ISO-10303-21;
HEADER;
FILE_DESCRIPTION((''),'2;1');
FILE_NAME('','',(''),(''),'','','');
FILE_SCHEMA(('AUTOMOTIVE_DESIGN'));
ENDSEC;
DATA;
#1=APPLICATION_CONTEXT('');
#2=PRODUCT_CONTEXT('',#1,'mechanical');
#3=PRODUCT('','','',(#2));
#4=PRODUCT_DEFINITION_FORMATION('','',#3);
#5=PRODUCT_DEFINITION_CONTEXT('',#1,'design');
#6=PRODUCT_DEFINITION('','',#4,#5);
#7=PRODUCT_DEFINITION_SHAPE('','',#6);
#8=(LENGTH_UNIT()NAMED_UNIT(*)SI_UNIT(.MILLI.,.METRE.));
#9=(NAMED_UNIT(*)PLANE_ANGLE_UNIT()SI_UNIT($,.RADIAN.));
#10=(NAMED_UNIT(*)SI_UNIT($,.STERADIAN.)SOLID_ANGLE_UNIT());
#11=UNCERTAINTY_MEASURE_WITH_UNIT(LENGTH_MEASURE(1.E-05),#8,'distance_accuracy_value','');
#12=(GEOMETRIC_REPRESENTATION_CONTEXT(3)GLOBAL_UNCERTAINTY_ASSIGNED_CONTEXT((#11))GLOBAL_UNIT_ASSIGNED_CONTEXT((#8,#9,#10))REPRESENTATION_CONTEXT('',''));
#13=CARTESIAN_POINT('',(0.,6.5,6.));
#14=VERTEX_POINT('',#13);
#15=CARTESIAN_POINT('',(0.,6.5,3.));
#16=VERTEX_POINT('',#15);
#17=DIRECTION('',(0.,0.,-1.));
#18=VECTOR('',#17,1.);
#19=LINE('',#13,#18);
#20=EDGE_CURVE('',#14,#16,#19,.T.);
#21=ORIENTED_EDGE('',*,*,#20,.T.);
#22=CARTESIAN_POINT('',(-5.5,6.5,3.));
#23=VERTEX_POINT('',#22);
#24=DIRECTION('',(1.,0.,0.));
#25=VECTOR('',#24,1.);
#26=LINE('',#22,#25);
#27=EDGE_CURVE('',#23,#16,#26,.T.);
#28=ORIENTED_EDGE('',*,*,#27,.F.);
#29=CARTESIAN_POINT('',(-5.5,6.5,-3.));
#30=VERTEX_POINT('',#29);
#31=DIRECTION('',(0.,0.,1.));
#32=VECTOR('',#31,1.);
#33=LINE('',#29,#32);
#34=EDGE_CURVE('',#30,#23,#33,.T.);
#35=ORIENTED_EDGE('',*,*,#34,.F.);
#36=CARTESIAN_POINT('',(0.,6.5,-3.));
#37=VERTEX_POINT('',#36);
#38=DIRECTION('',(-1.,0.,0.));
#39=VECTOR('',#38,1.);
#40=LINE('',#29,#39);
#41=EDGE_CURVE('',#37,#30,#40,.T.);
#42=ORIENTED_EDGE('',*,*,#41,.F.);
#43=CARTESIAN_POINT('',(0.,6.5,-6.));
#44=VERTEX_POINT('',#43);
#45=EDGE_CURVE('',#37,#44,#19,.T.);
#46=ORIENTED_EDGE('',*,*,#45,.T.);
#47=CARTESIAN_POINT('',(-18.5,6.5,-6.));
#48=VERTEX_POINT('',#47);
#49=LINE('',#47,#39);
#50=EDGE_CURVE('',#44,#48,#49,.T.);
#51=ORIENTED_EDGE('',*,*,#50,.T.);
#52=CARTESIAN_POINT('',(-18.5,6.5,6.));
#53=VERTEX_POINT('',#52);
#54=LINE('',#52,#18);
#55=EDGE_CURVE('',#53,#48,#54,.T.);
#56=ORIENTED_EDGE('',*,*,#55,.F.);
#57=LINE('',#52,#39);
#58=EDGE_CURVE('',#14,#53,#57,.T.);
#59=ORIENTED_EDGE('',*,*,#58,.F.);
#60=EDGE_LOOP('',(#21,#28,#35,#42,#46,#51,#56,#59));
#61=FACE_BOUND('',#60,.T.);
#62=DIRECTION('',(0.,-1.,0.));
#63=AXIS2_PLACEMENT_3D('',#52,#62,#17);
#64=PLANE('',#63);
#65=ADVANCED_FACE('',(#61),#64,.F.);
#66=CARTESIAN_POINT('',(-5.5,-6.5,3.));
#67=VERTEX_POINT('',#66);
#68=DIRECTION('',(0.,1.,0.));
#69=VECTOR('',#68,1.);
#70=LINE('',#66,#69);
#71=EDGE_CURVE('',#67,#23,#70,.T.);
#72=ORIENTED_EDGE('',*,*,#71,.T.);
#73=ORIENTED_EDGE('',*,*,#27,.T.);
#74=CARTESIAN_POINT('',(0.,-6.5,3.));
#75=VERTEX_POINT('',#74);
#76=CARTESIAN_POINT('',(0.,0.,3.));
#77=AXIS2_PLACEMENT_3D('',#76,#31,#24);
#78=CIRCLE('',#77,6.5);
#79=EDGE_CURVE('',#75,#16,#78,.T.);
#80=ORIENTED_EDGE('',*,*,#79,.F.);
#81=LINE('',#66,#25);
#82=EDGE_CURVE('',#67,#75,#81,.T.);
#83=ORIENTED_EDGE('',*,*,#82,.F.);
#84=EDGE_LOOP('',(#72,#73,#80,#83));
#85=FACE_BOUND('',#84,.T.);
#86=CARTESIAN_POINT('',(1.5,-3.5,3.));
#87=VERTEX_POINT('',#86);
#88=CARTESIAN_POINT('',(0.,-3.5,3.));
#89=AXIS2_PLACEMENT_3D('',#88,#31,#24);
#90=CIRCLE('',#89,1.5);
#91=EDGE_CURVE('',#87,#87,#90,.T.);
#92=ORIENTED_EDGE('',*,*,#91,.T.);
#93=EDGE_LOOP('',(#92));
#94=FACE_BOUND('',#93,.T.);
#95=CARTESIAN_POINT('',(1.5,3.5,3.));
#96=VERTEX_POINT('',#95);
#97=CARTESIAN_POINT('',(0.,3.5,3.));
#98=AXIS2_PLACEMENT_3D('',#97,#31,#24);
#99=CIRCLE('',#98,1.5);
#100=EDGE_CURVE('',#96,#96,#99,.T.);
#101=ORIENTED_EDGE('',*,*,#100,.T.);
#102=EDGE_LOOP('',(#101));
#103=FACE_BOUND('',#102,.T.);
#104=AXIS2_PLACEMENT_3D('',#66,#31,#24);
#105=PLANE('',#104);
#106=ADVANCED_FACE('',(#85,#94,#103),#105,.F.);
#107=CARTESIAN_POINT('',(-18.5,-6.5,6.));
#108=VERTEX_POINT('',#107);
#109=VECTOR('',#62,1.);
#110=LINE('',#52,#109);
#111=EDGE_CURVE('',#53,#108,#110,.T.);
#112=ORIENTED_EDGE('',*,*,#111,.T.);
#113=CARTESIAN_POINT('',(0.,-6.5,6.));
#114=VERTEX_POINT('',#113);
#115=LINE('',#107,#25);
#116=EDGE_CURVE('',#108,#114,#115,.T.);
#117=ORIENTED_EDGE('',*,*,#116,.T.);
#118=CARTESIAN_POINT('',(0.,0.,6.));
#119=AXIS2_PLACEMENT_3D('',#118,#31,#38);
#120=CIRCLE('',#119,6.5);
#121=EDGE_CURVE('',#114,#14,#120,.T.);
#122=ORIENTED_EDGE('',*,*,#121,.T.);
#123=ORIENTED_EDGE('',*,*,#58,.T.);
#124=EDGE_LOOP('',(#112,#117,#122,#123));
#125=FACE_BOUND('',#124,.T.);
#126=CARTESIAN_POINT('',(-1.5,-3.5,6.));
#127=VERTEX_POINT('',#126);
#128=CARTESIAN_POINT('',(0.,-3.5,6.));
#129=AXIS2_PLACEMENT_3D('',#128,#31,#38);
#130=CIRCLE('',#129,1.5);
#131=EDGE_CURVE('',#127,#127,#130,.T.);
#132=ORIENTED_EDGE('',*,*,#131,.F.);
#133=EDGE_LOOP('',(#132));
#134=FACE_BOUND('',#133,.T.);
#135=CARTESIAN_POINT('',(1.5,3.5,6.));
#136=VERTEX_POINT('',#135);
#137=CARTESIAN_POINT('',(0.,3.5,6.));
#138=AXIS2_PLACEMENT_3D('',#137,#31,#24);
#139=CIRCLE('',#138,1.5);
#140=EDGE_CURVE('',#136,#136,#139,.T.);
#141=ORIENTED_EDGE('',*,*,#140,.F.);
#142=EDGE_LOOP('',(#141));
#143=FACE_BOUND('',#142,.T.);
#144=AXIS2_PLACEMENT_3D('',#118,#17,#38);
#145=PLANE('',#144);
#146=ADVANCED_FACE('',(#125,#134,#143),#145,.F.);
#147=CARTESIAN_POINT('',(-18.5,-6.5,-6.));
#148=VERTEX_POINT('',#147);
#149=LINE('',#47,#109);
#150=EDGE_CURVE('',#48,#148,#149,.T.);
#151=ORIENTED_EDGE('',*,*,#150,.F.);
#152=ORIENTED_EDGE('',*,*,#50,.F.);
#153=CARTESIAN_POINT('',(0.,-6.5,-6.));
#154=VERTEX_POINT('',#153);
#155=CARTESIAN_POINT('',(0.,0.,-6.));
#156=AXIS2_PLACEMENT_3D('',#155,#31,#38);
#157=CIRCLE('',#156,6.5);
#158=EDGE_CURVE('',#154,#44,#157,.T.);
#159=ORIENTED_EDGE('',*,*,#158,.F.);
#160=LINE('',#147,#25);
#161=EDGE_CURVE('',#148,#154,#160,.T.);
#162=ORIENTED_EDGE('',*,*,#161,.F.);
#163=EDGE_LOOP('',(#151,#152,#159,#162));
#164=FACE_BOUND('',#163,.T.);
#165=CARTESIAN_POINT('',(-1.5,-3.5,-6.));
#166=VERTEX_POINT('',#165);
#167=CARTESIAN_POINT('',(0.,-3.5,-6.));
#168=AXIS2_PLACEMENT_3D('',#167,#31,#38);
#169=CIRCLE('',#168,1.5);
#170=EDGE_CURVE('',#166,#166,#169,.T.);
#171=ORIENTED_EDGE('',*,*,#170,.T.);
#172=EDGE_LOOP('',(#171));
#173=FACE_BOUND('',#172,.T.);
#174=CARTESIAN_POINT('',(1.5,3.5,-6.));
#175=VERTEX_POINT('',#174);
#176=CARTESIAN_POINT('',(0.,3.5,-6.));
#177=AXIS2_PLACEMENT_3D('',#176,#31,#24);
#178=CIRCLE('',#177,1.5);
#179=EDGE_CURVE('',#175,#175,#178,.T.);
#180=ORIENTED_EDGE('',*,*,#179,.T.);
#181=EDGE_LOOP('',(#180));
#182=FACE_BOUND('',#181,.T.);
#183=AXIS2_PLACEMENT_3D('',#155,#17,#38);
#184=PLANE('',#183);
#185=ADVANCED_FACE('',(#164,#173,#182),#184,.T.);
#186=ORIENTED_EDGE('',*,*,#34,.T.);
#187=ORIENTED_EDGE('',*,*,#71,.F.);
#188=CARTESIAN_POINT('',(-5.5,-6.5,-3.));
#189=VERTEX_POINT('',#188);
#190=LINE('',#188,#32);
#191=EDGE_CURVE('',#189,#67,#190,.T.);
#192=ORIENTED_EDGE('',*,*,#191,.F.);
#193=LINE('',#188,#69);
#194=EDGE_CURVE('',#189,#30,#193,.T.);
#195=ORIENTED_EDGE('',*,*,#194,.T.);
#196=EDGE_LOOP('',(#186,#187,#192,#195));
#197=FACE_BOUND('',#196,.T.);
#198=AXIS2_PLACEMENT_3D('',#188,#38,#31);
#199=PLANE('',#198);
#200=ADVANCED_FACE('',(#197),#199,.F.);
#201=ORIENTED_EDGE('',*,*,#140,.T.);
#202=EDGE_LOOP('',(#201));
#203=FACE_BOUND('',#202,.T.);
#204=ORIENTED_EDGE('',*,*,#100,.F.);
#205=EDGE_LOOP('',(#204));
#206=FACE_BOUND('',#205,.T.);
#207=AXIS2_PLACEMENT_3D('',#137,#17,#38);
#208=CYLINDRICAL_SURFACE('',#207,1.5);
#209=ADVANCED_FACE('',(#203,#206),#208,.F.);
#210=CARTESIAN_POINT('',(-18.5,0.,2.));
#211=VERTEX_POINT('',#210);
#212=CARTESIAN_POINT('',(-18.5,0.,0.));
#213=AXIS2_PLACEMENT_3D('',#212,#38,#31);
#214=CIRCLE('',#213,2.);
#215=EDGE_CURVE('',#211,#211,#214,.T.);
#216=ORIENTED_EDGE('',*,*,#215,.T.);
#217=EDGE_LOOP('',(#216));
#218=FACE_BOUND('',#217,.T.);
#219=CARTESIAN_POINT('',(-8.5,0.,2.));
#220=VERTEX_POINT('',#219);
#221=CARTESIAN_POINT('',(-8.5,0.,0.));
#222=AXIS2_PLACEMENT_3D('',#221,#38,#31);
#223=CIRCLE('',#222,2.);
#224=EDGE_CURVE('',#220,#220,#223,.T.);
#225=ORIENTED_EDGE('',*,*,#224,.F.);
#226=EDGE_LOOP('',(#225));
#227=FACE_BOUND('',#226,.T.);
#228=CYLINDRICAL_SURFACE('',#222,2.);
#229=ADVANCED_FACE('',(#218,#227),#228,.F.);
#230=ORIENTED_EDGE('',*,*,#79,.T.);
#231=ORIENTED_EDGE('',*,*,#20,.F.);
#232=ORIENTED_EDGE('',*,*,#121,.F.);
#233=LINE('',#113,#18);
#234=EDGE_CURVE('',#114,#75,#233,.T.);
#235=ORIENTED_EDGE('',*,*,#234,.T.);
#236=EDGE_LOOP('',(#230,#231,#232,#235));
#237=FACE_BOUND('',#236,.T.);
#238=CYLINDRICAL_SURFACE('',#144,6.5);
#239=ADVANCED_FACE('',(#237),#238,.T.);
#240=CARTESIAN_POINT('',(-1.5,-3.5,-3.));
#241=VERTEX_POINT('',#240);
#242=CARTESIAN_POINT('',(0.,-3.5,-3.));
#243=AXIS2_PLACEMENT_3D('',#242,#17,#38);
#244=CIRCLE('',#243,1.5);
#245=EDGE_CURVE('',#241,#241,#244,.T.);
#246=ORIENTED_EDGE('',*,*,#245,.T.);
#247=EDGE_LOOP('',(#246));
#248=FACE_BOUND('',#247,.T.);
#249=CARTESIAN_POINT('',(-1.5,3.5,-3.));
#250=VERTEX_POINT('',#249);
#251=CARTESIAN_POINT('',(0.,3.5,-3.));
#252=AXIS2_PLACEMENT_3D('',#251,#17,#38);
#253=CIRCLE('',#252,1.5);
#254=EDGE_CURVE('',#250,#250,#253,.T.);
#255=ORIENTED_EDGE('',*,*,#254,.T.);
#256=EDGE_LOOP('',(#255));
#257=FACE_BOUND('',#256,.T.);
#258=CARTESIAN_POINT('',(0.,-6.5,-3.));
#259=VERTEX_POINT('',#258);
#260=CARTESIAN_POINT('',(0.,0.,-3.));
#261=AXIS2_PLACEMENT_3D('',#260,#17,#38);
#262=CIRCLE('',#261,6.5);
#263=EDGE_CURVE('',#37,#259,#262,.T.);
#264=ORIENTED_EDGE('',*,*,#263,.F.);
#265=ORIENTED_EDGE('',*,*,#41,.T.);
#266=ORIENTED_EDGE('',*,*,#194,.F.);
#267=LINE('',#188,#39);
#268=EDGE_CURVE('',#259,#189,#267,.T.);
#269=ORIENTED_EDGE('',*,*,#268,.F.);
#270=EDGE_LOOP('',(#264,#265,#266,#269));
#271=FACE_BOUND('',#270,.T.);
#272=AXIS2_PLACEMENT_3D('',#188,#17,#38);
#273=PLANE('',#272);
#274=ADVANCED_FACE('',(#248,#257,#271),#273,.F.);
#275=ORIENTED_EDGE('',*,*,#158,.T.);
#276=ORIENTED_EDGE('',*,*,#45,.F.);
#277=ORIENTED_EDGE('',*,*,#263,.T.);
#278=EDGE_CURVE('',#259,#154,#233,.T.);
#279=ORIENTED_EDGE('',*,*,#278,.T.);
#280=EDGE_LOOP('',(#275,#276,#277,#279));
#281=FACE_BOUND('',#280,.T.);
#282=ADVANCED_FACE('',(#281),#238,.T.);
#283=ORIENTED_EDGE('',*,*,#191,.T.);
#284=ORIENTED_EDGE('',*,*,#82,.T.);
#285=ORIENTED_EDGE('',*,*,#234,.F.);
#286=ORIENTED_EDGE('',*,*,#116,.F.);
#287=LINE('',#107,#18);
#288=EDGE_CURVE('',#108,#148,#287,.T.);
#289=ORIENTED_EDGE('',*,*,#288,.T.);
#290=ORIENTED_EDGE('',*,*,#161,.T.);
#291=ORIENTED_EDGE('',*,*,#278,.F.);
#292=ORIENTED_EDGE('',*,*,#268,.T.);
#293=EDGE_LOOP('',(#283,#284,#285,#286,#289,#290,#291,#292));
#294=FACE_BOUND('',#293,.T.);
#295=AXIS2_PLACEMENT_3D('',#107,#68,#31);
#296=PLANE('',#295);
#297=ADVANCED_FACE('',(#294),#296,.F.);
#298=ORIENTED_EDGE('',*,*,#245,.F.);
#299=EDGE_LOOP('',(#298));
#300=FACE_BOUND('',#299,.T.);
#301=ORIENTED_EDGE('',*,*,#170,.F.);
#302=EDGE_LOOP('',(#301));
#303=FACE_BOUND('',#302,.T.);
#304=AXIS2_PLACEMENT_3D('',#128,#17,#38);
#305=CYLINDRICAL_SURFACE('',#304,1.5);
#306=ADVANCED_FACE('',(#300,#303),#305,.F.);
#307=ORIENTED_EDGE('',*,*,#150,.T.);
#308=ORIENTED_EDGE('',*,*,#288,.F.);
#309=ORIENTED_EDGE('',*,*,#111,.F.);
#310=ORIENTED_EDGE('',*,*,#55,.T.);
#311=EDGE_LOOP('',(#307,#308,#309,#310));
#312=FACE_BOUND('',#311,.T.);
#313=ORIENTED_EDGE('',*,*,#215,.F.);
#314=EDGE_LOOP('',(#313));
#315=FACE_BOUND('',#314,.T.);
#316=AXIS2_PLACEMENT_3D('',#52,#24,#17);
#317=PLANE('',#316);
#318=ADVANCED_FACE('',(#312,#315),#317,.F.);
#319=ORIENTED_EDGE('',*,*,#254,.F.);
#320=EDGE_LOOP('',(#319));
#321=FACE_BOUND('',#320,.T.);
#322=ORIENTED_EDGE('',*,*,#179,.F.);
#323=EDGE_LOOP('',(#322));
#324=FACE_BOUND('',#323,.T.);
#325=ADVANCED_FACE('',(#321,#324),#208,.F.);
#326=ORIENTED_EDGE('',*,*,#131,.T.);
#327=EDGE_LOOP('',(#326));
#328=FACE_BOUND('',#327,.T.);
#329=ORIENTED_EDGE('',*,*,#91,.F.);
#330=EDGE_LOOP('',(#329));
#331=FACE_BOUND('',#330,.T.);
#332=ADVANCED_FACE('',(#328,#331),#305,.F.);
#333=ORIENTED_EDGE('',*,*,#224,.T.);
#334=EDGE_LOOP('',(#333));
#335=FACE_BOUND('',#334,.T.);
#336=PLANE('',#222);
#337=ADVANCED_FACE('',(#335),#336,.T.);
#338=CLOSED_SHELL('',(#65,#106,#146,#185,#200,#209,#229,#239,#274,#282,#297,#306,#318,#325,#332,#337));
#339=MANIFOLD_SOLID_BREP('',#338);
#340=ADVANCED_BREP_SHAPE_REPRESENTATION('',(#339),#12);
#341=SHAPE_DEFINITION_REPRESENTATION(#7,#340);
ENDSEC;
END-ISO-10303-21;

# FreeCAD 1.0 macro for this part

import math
import FreeCAD as App
import Part
import Sketcher
from FreeCAD import Vector

doc = App.newDocument("Part")
body = doc.addObject("PartDesign::Body", "Body")

sketch1 = body.newObject("Sketcher::SketchObject", "Sketch")
sketch1.AttachmentSupport = (doc.getObject("XY_Plane"), [""])
sketch1.MapMode = "FlatFace"
sketch1.addGeometry([
    Part.LineSegment(Vector(0, 6.5, 0), Vector(-18.5, 6.5, 0)),
    Part.LineSegment(Vector(-18.5, 6.5, 0), Vector(-18.5, -6.5, 0)),
    Part.LineSegment(Vector(-18.5, -6.5, 0), Vector(0, -6.5, 0)),
    Part.ArcOfCircle(Part.Circle(Vector(0, 0, 0), Vector(0, 0, 1), 6.5), math.radians(-90), math.radians(90)),
    Part.Circle(Vector(0, -3.5, 0), Vector(0, 0, 1), 1.5),
    Part.Circle(Vector(0, 3.5, 0), Vector(0, 0, 1), 1.5),
], False)
sketch1.addConstraint([
    Sketcher.Constraint("Coincident", 0, 2, 1, 1),
    Sketcher.Constraint("Coincident", 1, 2, 2, 1),
    Sketcher.Constraint("Tangent", 2, 2, 3, 1),
    Sketcher.Constraint("Tangent", 3, 2, 0, 1),
    Sketcher.Constraint("Horizontal", 0),
    Sketcher.Constraint("Vertical", 1),
    Sketcher.Constraint("Horizontal", 2),
    Sketcher.Constraint("Coincident", 3, 3, -1, 1),
    Sketcher.Constraint("Equal", 4, 5),
    Sketcher.Constraint("Symmetric", 4, 3, 5, 3, -1, 1),
    Sketcher.Constraint("PointOnObject", 4, 3, -2),
    Sketcher.Constraint("Diameter", 4, 3.0),
    Sketcher.Constraint("Radius", 3, 6.5),
    Sketcher.Constraint("DistanceX", 0, 2, 0, 1, 18.5),
    Sketcher.Constraint("DistanceY", 4, 3, 5, 3, 7.0),
])
pad1 = body.newObject("PartDesign::Pad", "Pad")
pad1.Profile = sketch1
pad1.Length = 12
pad1.Midplane = True

sketch2 = body.newObject("Sketcher::SketchObject", "Sketch001")
sketch2.AttachmentSupport = (doc.getObject("XZ_Plane"), [""])
sketch2.MapMode = "FlatFace"
sketch2.addGeometry([
    Part.LineSegment(Vector(-5.5, -3, 0), Vector(-5.5, 3, 0)),
    Part.LineSegment(Vector(-5.5, 3, 0), Vector(6.5, 3, 0)),
    Part.LineSegment(Vector(6.5, 3, 0), Vector(6.5, -3, 0)),
    Part.LineSegment(Vector(6.5, -3, 0), Vector(-5.5, -3, 0)),
], False)
sketch2.addConstraint([
    Sketcher.Constraint("Coincident", 0, 2, 1, 1),
    Sketcher.Constraint("Coincident", 1, 2, 2, 1),
    Sketcher.Constraint("Coincident", 2, 2, 3, 1),
    Sketcher.Constraint("Coincident", 3, 2, 0, 1),
    Sketcher.Constraint("Vertical", 0),
    Sketcher.Constraint("Horizontal", 1),
    Sketcher.Constraint("Vertical", 2),
    Sketcher.Constraint("Horizontal", 3),
    Sketcher.Constraint("DistanceX", 1, 1, 1, 2, 12.0),
    Sketcher.Constraint("DistanceY", 0, 1, 0, 2, 6.0),
    Sketcher.Constraint("DistanceY", -1, 1, 0, 2, 3.0),
    Sketcher.Constraint("DistanceX", 0, 2, -1, 1, 5.5),
])
pocket1 = body.newObject("PartDesign::Pocket", "Pocket")
pocket1.Profile = sketch2
pocket1.Type = "ThroughAll"
pocket1.Midplane = True

sketch3 = body.newObject("Sketcher::SketchObject", "Sketch002")
sketch3.AttachmentSupport = (doc.getObject("YZ_Plane"), [""])
sketch3.MapMode = "FlatFace"
sketch3.AttachmentOffset = App.Placement(Vector(0, 0, -18.5), App.Rotation())
sketch3.addGeometry(Part.Circle(Vector(0, 0, 0), Vector(0, 0, 1), 2), False)
sketch3.addConstraint([
    Sketcher.Constraint("Coincident", 0, 3, -1, 1),
    Sketcher.Constraint("Diameter", 0, 4.0),
])
pocket2 = body.newObject("PartDesign::Pocket", "Pocket001")
pocket2.Profile = sketch3
pocket2.Length = 10
pocket2.Reversed = True

doc.recompute()
